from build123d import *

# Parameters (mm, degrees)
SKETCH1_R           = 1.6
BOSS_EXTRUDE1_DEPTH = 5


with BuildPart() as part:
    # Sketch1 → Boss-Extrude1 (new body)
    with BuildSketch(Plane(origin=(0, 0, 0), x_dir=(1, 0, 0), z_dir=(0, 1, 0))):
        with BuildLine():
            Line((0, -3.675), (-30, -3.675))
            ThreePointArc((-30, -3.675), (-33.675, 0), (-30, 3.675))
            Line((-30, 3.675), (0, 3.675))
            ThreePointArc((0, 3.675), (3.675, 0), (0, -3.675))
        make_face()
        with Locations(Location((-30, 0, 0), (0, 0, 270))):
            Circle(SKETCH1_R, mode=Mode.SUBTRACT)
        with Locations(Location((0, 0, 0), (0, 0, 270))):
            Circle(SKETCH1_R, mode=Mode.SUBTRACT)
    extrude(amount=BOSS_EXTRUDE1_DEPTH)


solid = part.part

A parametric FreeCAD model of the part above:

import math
import FreeCAD as App
import Part
import Sketcher

V = App.Vector

doc = App.newDocument("Part")
params = doc.addObject("Spreadsheet::Sheet", "Params")
for row, (alias, value) in enumerate([
    ("sketch1_diameter", "3.2 mm"),
    ("sketch1_width", "30 mm"),
    ("pad1_length", "5 mm"),
], start=1):
    params.set(f"A{row}", alias)
    params.set(f"B{row}", "=" + value)
    params.setAlias(f"B{row}", alias)

body = doc.addObject("PartDesign::Body", "Body")

# Sketch on XZ plane
sketch1 = doc.addObject("Sketcher::SketchObject", "Sketch")
body.addObject(sketch1)
sketch1.AttachmentSupport = (doc.XZ_Plane, [""])
sketch1.MapMode = "FlatFace"
sketch1.addGeometry(Part.LineSegment(V(-30, 3.7, 0), V(0, 3.7, 0)), False)
sketch1.addGeometry(Part.ArcOfCircle(Part.Circle(V(0, 0, 0), V(0, 0, 1), 3.7), math.radians(-90), math.radians(90)), False)
sketch1.addGeometry(Part.LineSegment(V(0, -3.7, 0), V(-30, -3.7, 0)), False)
sketch1.addGeometry(Part.ArcOfCircle(Part.Circle(V(-30, 0, 0), V(0, 0, 1), 3.7), math.radians(90), math.radians(270)), False)
sketch1.addGeometry(Part.Circle(V(0, 0, 0), V(0, 0, 1), 1.6), False)
sketch1.addGeometry(Part.Circle(V(-30, 0, 0), V(0, 0, 1), 1.6), False)
sketch1.addConstraint(Sketcher.Constraint("Tangent", 0, 2, 1, 2))
sketch1.addConstraint(Sketcher.Constraint("Tangent", 1, 1, 2, 1))
sketch1.addConstraint(Sketcher.Constraint("Tangent", 2, 2, 3, 2))
sketch1.addConstraint(Sketcher.Constraint("Tangent", 3, 1, 0, 1))
sketch1.addConstraint(Sketcher.Constraint("Horizontal", 0))
sketch1.addConstraint(Sketcher.Constraint("Horizontal", 2))
sketch1.addConstraint(Sketcher.Constraint("Coincident", 1, 3, -1, 1))
sketch1.addConstraint(Sketcher.Constraint("Coincident", 4, 3, -1, 1))
sketch1.addConstraint(Sketcher.Constraint("Coincident", 5, 3, 3, 3))
sketch1.addConstraint(Sketcher.Constraint("Equal", 4, 5))
sketch1.addConstraint(Sketcher.Constraint("Diameter", 4, 3.2))
sketch1.addConstraint(Sketcher.Constraint("DistanceX", 0, 1, 0, 2, 30.0))
sketch1.addConstraint(Sketcher.Constraint("Radius", 1, 3.675))
sketch1.setExpression("Constraints[10]", "Params.sketch1_diameter")
sketch1.setExpression("Constraints[11]", "Params.sketch1_width")
pad1 = doc.addObject("PartDesign::Pad", "Pad")
body.addObject(pad1)
pad1.Profile = sketch1
pad1.setExpression("Length", "Params.pad1_length")
pad1.Reversed = True

doc.recompute()
